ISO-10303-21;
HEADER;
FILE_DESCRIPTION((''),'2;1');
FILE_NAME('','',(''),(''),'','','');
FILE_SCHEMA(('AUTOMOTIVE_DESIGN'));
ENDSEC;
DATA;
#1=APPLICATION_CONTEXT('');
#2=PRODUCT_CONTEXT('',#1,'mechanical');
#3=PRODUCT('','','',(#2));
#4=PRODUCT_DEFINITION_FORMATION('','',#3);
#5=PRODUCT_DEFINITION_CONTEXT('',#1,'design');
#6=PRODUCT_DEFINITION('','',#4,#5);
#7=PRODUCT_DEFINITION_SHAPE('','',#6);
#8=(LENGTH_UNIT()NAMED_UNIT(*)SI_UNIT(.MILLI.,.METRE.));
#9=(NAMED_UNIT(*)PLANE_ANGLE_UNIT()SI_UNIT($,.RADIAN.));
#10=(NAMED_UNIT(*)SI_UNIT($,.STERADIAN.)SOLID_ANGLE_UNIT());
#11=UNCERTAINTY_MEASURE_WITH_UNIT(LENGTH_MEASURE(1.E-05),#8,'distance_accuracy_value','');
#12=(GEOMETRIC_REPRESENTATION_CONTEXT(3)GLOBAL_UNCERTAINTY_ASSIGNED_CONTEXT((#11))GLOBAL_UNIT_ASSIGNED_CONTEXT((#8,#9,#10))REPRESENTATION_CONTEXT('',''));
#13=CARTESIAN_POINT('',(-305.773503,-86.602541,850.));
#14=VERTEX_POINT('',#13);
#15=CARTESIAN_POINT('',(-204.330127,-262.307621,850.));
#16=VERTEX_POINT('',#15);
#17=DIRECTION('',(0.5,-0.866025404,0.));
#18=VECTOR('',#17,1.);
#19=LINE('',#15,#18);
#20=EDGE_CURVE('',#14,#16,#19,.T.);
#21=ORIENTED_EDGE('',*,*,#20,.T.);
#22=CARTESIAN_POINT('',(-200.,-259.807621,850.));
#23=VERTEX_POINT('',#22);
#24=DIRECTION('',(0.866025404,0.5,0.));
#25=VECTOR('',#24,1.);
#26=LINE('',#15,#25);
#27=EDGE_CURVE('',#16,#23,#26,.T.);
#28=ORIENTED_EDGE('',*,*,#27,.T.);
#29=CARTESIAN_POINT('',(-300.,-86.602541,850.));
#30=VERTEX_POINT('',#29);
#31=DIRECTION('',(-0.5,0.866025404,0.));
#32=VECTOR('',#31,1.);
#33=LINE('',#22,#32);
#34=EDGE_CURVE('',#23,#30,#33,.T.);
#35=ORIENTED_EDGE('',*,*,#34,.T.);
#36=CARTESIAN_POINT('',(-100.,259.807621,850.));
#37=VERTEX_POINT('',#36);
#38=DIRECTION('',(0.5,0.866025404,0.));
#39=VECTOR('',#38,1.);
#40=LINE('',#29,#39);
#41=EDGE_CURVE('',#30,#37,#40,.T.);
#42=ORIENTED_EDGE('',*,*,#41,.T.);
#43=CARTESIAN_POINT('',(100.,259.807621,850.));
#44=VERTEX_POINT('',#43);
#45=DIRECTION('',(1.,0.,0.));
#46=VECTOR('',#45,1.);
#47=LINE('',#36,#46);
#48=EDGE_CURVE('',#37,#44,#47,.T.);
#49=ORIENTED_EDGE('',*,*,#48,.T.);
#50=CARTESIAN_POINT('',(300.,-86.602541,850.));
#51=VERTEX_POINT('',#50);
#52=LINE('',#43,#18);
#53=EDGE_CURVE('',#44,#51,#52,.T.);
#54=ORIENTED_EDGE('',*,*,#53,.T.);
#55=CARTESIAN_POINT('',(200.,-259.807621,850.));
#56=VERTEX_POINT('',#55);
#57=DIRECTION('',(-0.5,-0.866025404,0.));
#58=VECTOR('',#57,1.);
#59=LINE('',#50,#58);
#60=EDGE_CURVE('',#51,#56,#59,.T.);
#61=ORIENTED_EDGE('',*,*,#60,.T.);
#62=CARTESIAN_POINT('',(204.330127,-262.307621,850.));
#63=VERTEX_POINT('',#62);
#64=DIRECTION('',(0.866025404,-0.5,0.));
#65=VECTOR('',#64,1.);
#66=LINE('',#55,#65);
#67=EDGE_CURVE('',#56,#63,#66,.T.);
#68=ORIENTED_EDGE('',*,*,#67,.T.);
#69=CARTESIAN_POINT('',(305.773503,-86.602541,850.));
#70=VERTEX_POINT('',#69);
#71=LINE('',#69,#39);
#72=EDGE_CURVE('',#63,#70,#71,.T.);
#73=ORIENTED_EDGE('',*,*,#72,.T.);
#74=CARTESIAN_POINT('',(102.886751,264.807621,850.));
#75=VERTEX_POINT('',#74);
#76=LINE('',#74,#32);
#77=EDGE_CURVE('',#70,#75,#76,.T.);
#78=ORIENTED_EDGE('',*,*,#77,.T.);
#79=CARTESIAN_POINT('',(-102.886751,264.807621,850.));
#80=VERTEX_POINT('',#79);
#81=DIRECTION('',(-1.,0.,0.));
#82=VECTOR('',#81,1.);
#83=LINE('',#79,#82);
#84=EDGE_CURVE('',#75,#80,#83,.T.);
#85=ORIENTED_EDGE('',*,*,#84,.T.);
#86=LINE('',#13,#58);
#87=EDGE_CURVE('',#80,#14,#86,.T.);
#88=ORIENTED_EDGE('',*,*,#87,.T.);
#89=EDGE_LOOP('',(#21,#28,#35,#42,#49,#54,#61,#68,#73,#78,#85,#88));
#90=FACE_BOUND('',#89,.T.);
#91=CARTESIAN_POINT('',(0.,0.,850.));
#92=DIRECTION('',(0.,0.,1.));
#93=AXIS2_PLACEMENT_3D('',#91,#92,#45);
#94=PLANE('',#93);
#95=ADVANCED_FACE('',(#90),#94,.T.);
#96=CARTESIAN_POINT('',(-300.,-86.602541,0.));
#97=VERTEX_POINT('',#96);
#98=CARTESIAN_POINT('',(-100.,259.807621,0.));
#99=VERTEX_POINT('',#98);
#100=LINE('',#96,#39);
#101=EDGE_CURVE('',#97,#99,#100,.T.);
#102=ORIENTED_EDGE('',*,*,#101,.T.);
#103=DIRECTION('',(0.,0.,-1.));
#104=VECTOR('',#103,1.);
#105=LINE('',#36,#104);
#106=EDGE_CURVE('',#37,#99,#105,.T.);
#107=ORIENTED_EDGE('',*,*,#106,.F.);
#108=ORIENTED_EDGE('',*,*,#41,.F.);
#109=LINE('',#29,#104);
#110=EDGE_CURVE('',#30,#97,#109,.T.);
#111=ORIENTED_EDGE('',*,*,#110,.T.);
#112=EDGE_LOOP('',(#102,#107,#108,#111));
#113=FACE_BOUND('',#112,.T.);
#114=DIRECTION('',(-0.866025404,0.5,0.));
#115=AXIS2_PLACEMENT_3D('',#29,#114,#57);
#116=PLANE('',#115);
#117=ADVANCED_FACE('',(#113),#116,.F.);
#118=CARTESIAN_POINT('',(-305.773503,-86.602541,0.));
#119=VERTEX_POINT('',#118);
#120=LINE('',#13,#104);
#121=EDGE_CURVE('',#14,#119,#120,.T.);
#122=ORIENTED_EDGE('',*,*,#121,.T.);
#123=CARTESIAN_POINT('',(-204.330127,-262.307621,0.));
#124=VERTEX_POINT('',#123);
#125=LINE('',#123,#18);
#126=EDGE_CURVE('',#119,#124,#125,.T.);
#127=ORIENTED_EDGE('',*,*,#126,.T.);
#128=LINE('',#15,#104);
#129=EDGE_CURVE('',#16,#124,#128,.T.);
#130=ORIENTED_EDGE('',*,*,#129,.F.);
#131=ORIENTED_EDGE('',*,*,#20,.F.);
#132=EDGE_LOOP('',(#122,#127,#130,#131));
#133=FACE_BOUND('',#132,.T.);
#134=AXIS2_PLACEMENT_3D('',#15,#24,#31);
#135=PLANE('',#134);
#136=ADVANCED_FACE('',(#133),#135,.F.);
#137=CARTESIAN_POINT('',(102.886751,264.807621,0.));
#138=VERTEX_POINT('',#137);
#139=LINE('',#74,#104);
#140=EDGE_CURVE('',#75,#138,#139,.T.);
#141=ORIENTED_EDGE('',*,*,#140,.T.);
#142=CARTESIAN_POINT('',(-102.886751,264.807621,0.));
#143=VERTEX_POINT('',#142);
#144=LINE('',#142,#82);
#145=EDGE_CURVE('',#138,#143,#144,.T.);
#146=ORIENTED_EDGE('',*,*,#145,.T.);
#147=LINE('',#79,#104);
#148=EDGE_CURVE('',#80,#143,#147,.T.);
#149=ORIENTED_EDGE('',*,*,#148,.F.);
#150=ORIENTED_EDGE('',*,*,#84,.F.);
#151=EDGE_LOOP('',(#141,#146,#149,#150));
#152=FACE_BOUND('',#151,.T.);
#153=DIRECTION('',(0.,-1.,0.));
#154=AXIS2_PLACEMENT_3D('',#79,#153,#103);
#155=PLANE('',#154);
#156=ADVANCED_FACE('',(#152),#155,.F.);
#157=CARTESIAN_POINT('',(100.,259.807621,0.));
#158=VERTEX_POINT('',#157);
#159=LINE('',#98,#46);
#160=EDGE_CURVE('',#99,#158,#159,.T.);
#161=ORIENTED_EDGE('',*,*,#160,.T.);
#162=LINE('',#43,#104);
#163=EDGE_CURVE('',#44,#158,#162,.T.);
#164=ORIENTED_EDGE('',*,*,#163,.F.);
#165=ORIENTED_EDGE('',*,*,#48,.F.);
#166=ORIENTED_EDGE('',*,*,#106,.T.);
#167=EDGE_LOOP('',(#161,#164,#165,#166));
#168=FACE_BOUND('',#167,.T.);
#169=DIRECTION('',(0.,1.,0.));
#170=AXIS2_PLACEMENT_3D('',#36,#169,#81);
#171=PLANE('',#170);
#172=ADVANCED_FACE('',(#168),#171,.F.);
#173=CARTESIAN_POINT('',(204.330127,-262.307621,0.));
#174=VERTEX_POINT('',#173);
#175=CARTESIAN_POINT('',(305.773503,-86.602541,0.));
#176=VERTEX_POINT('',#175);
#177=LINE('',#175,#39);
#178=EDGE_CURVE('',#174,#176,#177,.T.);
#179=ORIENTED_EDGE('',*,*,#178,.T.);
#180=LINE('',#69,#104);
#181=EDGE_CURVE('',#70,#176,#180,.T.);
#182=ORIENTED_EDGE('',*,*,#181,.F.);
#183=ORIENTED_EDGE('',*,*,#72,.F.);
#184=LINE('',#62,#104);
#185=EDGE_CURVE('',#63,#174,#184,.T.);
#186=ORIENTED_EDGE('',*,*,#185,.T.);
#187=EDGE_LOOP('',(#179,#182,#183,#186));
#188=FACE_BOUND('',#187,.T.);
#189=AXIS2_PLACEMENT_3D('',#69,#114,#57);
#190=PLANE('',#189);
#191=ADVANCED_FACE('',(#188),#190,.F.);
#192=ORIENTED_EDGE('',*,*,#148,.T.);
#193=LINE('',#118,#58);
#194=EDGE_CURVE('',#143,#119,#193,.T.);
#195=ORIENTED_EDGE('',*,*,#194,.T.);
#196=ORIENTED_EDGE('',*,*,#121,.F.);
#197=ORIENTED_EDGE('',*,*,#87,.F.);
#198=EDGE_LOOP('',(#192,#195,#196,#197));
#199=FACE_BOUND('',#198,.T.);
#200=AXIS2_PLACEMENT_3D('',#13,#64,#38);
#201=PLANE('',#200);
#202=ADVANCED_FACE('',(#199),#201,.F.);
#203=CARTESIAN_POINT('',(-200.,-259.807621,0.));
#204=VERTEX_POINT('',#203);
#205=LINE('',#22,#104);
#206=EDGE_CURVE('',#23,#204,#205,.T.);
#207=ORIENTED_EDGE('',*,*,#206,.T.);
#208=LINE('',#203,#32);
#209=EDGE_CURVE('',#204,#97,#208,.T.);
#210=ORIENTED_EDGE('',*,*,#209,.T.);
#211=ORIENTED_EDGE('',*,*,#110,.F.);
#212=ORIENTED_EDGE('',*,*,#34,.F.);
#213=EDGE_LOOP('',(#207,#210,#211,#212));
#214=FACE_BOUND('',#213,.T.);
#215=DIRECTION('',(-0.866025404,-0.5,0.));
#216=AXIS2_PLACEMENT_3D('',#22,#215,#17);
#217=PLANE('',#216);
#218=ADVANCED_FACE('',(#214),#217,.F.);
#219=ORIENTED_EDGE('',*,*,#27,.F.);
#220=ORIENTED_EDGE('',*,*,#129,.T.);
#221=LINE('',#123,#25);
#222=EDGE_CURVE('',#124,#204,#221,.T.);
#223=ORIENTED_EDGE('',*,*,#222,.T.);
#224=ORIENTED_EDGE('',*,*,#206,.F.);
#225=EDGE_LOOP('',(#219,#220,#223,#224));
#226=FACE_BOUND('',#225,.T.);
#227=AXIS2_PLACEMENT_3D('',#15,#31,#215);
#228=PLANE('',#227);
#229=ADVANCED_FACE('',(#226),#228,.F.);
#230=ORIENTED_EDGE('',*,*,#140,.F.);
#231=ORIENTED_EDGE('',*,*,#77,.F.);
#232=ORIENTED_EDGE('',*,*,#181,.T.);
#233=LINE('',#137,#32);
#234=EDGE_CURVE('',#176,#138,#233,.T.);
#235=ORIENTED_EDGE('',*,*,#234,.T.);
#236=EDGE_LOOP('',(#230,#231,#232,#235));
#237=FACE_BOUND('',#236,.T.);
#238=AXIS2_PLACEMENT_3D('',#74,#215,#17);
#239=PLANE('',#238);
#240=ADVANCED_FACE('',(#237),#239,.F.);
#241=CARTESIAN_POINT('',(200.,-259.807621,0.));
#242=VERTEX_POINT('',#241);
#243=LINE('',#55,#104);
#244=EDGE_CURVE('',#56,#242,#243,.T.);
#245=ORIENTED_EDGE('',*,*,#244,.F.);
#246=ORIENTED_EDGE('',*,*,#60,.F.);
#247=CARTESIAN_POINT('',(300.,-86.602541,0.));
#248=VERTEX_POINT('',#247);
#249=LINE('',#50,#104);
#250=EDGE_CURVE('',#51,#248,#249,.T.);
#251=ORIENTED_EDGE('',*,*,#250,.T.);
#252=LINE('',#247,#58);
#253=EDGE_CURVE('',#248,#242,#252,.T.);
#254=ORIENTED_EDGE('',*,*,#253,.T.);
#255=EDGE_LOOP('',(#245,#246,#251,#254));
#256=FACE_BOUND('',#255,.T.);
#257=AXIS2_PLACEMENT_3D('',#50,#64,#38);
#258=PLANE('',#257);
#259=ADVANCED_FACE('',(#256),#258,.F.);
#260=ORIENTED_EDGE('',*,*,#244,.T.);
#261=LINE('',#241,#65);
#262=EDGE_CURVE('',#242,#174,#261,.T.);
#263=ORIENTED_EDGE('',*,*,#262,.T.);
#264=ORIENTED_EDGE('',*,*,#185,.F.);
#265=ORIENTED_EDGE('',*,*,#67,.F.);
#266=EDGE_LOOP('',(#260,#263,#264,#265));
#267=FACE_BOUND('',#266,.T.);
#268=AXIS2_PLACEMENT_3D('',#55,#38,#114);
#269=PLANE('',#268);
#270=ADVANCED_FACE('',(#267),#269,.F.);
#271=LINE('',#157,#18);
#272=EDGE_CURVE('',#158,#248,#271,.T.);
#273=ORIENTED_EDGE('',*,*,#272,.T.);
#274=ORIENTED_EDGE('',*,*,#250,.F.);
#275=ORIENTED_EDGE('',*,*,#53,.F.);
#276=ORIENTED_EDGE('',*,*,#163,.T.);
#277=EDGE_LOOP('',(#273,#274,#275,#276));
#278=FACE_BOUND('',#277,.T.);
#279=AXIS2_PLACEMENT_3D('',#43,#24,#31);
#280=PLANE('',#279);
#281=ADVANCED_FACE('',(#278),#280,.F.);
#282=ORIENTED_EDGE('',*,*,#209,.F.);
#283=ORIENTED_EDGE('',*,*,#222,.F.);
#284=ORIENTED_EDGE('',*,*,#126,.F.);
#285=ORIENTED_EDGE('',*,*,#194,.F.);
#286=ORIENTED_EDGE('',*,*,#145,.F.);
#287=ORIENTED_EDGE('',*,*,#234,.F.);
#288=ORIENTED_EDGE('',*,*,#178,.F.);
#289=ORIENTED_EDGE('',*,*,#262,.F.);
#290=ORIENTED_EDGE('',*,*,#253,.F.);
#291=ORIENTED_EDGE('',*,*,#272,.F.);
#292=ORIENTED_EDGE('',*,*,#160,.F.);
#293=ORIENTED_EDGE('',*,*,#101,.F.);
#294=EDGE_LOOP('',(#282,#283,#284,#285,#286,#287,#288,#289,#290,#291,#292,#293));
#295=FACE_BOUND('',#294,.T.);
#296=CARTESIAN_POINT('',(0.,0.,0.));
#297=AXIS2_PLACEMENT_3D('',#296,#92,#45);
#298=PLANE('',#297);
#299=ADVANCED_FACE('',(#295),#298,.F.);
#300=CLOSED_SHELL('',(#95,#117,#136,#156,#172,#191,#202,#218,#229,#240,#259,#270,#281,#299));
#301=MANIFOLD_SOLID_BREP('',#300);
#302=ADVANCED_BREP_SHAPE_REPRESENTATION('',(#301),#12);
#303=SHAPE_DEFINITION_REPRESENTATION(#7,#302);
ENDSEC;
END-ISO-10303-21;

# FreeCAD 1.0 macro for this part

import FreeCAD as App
import Part
import Sketcher
from FreeCAD import Vector
Q = App.Units.Quantity

doc = App.newDocument("Part")
body = doc.addObject("PartDesign::Body", "Body")

# Sketch on XY plane
sketch1 = body.newObject("Sketcher::SketchObject", "Sketch")
sketch1.AttachmentSupport = (doc.getObject("XY_Plane"), [""])
sketch1.MapMode = "FlatFace"
sketch1.addGeometry([
    Part.LineSegment(Vector(-100, 260, 0), Vector(100, 260, 0)),  # 0
    Part.LineSegment(Vector(100, 260, 0), Vector(300, -87, 0)),  # 1
    Part.LineSegment(Vector(300, -87, 0), Vector(200, -260, 0)),  # 2
    Part.LineSegment(Vector(200, -260, 0), Vector(204, -262, 0)),  # 3
    Part.LineSegment(Vector(204, -262, 0), Vector(306, -87, 0)),  # 4
    Part.LineSegment(Vector(306, -87, 0), Vector(103, 265, 0)),  # 5
    Part.LineSegment(Vector(103, 265, 0), Vector(-103, 265, 0)),  # 6
    Part.LineSegment(Vector(-103, 265, 0), Vector(-306, -87, 0)),  # 7
    Part.LineSegment(Vector(-306, -87, 0), Vector(-204, -262, 0)),  # 8
    Part.LineSegment(Vector(-204, -262, 0), Vector(-200, -260, 0)),  # 9
    Part.LineSegment(Vector(-200, -260, 0), Vector(-300, -87, 0)),  # 10
    Part.LineSegment(Vector(-300, -87, 0), Vector(-100, 260, 0)),  # 11
], False)
sketch1.addConstraint([
    Sketcher.Constraint("Coincident", 0, 2, 1, 1),
    Sketcher.Constraint("Coincident", 1, 2, 2, 1),
    Sketcher.Constraint("Coincident", 2, 2, 3, 1),
    Sketcher.Constraint("Coincident", 3, 2, 4, 1),
    Sketcher.Constraint("Coincident", 4, 2, 5, 1),
    Sketcher.Constraint("Coincident", 5, 2, 6, 1),
    Sketcher.Constraint("Coincident", 6, 2, 7, 1),
    Sketcher.Constraint("Coincident", 7, 2, 8, 1),
    Sketcher.Constraint("Coincident", 8, 2, 9, 1),
    Sketcher.Constraint("Coincident", 9, 2, 10, 1),
    Sketcher.Constraint("Coincident", 10, 2, 11, 1),
    Sketcher.Constraint("Coincident", 11, 2, 0, 1),
    Sketcher.Constraint("Horizontal", 0),
    Sketcher.Constraint("Horizontal", 6),
    Sketcher.Constraint("Symmetric", 4, 2, 7, 2, -2),
    Sketcher.Constraint("Symmetric", 3, 2, 8, 2, -2),
    Sketcher.Constraint("Symmetric", 2, 2, 9, 2, -2),
    Sketcher.Constraint("Symmetric", 1, 2, 10, 2, -2),
    Sketcher.Constraint("Perpendicular", 2, 3),
    Sketcher.Constraint("Perpendicular", 3, 4),
    Sketcher.Constraint("Parallel", 1, 5),
    Sketcher.Constraint("Parallel", 4, 7),
    Sketcher.Constraint("Parallel", 5, 8),
    Sketcher.Constraint("Parallel", 7, 11),
    Sketcher.Constraint("Horizontal", 1, 2, 4, 2),
    Sketcher.Constraint("DistanceX", 0, 1, 0, 2, 200.0),
    Sketcher.Constraint("Angle", 1, Q("-60 deg")),
    Sketcher.Constraint("Distance", 1, 400.0),
    Sketcher.Constraint("Distance", 2, 200.0),
    Sketcher.Constraint("Distance", 3, 5.0),
    Sketcher.Constraint("DistanceY", 0, 2, 5, 2, 5.0),
    Sketcher.Constraint("DistanceY", -1, 1, 0, 2, 259.807621),
])
pad1 = body.newObject("PartDesign::Pad", "Pad")
pad1.Profile = sketch1
pad1.Length = 850

doc.recompute()
